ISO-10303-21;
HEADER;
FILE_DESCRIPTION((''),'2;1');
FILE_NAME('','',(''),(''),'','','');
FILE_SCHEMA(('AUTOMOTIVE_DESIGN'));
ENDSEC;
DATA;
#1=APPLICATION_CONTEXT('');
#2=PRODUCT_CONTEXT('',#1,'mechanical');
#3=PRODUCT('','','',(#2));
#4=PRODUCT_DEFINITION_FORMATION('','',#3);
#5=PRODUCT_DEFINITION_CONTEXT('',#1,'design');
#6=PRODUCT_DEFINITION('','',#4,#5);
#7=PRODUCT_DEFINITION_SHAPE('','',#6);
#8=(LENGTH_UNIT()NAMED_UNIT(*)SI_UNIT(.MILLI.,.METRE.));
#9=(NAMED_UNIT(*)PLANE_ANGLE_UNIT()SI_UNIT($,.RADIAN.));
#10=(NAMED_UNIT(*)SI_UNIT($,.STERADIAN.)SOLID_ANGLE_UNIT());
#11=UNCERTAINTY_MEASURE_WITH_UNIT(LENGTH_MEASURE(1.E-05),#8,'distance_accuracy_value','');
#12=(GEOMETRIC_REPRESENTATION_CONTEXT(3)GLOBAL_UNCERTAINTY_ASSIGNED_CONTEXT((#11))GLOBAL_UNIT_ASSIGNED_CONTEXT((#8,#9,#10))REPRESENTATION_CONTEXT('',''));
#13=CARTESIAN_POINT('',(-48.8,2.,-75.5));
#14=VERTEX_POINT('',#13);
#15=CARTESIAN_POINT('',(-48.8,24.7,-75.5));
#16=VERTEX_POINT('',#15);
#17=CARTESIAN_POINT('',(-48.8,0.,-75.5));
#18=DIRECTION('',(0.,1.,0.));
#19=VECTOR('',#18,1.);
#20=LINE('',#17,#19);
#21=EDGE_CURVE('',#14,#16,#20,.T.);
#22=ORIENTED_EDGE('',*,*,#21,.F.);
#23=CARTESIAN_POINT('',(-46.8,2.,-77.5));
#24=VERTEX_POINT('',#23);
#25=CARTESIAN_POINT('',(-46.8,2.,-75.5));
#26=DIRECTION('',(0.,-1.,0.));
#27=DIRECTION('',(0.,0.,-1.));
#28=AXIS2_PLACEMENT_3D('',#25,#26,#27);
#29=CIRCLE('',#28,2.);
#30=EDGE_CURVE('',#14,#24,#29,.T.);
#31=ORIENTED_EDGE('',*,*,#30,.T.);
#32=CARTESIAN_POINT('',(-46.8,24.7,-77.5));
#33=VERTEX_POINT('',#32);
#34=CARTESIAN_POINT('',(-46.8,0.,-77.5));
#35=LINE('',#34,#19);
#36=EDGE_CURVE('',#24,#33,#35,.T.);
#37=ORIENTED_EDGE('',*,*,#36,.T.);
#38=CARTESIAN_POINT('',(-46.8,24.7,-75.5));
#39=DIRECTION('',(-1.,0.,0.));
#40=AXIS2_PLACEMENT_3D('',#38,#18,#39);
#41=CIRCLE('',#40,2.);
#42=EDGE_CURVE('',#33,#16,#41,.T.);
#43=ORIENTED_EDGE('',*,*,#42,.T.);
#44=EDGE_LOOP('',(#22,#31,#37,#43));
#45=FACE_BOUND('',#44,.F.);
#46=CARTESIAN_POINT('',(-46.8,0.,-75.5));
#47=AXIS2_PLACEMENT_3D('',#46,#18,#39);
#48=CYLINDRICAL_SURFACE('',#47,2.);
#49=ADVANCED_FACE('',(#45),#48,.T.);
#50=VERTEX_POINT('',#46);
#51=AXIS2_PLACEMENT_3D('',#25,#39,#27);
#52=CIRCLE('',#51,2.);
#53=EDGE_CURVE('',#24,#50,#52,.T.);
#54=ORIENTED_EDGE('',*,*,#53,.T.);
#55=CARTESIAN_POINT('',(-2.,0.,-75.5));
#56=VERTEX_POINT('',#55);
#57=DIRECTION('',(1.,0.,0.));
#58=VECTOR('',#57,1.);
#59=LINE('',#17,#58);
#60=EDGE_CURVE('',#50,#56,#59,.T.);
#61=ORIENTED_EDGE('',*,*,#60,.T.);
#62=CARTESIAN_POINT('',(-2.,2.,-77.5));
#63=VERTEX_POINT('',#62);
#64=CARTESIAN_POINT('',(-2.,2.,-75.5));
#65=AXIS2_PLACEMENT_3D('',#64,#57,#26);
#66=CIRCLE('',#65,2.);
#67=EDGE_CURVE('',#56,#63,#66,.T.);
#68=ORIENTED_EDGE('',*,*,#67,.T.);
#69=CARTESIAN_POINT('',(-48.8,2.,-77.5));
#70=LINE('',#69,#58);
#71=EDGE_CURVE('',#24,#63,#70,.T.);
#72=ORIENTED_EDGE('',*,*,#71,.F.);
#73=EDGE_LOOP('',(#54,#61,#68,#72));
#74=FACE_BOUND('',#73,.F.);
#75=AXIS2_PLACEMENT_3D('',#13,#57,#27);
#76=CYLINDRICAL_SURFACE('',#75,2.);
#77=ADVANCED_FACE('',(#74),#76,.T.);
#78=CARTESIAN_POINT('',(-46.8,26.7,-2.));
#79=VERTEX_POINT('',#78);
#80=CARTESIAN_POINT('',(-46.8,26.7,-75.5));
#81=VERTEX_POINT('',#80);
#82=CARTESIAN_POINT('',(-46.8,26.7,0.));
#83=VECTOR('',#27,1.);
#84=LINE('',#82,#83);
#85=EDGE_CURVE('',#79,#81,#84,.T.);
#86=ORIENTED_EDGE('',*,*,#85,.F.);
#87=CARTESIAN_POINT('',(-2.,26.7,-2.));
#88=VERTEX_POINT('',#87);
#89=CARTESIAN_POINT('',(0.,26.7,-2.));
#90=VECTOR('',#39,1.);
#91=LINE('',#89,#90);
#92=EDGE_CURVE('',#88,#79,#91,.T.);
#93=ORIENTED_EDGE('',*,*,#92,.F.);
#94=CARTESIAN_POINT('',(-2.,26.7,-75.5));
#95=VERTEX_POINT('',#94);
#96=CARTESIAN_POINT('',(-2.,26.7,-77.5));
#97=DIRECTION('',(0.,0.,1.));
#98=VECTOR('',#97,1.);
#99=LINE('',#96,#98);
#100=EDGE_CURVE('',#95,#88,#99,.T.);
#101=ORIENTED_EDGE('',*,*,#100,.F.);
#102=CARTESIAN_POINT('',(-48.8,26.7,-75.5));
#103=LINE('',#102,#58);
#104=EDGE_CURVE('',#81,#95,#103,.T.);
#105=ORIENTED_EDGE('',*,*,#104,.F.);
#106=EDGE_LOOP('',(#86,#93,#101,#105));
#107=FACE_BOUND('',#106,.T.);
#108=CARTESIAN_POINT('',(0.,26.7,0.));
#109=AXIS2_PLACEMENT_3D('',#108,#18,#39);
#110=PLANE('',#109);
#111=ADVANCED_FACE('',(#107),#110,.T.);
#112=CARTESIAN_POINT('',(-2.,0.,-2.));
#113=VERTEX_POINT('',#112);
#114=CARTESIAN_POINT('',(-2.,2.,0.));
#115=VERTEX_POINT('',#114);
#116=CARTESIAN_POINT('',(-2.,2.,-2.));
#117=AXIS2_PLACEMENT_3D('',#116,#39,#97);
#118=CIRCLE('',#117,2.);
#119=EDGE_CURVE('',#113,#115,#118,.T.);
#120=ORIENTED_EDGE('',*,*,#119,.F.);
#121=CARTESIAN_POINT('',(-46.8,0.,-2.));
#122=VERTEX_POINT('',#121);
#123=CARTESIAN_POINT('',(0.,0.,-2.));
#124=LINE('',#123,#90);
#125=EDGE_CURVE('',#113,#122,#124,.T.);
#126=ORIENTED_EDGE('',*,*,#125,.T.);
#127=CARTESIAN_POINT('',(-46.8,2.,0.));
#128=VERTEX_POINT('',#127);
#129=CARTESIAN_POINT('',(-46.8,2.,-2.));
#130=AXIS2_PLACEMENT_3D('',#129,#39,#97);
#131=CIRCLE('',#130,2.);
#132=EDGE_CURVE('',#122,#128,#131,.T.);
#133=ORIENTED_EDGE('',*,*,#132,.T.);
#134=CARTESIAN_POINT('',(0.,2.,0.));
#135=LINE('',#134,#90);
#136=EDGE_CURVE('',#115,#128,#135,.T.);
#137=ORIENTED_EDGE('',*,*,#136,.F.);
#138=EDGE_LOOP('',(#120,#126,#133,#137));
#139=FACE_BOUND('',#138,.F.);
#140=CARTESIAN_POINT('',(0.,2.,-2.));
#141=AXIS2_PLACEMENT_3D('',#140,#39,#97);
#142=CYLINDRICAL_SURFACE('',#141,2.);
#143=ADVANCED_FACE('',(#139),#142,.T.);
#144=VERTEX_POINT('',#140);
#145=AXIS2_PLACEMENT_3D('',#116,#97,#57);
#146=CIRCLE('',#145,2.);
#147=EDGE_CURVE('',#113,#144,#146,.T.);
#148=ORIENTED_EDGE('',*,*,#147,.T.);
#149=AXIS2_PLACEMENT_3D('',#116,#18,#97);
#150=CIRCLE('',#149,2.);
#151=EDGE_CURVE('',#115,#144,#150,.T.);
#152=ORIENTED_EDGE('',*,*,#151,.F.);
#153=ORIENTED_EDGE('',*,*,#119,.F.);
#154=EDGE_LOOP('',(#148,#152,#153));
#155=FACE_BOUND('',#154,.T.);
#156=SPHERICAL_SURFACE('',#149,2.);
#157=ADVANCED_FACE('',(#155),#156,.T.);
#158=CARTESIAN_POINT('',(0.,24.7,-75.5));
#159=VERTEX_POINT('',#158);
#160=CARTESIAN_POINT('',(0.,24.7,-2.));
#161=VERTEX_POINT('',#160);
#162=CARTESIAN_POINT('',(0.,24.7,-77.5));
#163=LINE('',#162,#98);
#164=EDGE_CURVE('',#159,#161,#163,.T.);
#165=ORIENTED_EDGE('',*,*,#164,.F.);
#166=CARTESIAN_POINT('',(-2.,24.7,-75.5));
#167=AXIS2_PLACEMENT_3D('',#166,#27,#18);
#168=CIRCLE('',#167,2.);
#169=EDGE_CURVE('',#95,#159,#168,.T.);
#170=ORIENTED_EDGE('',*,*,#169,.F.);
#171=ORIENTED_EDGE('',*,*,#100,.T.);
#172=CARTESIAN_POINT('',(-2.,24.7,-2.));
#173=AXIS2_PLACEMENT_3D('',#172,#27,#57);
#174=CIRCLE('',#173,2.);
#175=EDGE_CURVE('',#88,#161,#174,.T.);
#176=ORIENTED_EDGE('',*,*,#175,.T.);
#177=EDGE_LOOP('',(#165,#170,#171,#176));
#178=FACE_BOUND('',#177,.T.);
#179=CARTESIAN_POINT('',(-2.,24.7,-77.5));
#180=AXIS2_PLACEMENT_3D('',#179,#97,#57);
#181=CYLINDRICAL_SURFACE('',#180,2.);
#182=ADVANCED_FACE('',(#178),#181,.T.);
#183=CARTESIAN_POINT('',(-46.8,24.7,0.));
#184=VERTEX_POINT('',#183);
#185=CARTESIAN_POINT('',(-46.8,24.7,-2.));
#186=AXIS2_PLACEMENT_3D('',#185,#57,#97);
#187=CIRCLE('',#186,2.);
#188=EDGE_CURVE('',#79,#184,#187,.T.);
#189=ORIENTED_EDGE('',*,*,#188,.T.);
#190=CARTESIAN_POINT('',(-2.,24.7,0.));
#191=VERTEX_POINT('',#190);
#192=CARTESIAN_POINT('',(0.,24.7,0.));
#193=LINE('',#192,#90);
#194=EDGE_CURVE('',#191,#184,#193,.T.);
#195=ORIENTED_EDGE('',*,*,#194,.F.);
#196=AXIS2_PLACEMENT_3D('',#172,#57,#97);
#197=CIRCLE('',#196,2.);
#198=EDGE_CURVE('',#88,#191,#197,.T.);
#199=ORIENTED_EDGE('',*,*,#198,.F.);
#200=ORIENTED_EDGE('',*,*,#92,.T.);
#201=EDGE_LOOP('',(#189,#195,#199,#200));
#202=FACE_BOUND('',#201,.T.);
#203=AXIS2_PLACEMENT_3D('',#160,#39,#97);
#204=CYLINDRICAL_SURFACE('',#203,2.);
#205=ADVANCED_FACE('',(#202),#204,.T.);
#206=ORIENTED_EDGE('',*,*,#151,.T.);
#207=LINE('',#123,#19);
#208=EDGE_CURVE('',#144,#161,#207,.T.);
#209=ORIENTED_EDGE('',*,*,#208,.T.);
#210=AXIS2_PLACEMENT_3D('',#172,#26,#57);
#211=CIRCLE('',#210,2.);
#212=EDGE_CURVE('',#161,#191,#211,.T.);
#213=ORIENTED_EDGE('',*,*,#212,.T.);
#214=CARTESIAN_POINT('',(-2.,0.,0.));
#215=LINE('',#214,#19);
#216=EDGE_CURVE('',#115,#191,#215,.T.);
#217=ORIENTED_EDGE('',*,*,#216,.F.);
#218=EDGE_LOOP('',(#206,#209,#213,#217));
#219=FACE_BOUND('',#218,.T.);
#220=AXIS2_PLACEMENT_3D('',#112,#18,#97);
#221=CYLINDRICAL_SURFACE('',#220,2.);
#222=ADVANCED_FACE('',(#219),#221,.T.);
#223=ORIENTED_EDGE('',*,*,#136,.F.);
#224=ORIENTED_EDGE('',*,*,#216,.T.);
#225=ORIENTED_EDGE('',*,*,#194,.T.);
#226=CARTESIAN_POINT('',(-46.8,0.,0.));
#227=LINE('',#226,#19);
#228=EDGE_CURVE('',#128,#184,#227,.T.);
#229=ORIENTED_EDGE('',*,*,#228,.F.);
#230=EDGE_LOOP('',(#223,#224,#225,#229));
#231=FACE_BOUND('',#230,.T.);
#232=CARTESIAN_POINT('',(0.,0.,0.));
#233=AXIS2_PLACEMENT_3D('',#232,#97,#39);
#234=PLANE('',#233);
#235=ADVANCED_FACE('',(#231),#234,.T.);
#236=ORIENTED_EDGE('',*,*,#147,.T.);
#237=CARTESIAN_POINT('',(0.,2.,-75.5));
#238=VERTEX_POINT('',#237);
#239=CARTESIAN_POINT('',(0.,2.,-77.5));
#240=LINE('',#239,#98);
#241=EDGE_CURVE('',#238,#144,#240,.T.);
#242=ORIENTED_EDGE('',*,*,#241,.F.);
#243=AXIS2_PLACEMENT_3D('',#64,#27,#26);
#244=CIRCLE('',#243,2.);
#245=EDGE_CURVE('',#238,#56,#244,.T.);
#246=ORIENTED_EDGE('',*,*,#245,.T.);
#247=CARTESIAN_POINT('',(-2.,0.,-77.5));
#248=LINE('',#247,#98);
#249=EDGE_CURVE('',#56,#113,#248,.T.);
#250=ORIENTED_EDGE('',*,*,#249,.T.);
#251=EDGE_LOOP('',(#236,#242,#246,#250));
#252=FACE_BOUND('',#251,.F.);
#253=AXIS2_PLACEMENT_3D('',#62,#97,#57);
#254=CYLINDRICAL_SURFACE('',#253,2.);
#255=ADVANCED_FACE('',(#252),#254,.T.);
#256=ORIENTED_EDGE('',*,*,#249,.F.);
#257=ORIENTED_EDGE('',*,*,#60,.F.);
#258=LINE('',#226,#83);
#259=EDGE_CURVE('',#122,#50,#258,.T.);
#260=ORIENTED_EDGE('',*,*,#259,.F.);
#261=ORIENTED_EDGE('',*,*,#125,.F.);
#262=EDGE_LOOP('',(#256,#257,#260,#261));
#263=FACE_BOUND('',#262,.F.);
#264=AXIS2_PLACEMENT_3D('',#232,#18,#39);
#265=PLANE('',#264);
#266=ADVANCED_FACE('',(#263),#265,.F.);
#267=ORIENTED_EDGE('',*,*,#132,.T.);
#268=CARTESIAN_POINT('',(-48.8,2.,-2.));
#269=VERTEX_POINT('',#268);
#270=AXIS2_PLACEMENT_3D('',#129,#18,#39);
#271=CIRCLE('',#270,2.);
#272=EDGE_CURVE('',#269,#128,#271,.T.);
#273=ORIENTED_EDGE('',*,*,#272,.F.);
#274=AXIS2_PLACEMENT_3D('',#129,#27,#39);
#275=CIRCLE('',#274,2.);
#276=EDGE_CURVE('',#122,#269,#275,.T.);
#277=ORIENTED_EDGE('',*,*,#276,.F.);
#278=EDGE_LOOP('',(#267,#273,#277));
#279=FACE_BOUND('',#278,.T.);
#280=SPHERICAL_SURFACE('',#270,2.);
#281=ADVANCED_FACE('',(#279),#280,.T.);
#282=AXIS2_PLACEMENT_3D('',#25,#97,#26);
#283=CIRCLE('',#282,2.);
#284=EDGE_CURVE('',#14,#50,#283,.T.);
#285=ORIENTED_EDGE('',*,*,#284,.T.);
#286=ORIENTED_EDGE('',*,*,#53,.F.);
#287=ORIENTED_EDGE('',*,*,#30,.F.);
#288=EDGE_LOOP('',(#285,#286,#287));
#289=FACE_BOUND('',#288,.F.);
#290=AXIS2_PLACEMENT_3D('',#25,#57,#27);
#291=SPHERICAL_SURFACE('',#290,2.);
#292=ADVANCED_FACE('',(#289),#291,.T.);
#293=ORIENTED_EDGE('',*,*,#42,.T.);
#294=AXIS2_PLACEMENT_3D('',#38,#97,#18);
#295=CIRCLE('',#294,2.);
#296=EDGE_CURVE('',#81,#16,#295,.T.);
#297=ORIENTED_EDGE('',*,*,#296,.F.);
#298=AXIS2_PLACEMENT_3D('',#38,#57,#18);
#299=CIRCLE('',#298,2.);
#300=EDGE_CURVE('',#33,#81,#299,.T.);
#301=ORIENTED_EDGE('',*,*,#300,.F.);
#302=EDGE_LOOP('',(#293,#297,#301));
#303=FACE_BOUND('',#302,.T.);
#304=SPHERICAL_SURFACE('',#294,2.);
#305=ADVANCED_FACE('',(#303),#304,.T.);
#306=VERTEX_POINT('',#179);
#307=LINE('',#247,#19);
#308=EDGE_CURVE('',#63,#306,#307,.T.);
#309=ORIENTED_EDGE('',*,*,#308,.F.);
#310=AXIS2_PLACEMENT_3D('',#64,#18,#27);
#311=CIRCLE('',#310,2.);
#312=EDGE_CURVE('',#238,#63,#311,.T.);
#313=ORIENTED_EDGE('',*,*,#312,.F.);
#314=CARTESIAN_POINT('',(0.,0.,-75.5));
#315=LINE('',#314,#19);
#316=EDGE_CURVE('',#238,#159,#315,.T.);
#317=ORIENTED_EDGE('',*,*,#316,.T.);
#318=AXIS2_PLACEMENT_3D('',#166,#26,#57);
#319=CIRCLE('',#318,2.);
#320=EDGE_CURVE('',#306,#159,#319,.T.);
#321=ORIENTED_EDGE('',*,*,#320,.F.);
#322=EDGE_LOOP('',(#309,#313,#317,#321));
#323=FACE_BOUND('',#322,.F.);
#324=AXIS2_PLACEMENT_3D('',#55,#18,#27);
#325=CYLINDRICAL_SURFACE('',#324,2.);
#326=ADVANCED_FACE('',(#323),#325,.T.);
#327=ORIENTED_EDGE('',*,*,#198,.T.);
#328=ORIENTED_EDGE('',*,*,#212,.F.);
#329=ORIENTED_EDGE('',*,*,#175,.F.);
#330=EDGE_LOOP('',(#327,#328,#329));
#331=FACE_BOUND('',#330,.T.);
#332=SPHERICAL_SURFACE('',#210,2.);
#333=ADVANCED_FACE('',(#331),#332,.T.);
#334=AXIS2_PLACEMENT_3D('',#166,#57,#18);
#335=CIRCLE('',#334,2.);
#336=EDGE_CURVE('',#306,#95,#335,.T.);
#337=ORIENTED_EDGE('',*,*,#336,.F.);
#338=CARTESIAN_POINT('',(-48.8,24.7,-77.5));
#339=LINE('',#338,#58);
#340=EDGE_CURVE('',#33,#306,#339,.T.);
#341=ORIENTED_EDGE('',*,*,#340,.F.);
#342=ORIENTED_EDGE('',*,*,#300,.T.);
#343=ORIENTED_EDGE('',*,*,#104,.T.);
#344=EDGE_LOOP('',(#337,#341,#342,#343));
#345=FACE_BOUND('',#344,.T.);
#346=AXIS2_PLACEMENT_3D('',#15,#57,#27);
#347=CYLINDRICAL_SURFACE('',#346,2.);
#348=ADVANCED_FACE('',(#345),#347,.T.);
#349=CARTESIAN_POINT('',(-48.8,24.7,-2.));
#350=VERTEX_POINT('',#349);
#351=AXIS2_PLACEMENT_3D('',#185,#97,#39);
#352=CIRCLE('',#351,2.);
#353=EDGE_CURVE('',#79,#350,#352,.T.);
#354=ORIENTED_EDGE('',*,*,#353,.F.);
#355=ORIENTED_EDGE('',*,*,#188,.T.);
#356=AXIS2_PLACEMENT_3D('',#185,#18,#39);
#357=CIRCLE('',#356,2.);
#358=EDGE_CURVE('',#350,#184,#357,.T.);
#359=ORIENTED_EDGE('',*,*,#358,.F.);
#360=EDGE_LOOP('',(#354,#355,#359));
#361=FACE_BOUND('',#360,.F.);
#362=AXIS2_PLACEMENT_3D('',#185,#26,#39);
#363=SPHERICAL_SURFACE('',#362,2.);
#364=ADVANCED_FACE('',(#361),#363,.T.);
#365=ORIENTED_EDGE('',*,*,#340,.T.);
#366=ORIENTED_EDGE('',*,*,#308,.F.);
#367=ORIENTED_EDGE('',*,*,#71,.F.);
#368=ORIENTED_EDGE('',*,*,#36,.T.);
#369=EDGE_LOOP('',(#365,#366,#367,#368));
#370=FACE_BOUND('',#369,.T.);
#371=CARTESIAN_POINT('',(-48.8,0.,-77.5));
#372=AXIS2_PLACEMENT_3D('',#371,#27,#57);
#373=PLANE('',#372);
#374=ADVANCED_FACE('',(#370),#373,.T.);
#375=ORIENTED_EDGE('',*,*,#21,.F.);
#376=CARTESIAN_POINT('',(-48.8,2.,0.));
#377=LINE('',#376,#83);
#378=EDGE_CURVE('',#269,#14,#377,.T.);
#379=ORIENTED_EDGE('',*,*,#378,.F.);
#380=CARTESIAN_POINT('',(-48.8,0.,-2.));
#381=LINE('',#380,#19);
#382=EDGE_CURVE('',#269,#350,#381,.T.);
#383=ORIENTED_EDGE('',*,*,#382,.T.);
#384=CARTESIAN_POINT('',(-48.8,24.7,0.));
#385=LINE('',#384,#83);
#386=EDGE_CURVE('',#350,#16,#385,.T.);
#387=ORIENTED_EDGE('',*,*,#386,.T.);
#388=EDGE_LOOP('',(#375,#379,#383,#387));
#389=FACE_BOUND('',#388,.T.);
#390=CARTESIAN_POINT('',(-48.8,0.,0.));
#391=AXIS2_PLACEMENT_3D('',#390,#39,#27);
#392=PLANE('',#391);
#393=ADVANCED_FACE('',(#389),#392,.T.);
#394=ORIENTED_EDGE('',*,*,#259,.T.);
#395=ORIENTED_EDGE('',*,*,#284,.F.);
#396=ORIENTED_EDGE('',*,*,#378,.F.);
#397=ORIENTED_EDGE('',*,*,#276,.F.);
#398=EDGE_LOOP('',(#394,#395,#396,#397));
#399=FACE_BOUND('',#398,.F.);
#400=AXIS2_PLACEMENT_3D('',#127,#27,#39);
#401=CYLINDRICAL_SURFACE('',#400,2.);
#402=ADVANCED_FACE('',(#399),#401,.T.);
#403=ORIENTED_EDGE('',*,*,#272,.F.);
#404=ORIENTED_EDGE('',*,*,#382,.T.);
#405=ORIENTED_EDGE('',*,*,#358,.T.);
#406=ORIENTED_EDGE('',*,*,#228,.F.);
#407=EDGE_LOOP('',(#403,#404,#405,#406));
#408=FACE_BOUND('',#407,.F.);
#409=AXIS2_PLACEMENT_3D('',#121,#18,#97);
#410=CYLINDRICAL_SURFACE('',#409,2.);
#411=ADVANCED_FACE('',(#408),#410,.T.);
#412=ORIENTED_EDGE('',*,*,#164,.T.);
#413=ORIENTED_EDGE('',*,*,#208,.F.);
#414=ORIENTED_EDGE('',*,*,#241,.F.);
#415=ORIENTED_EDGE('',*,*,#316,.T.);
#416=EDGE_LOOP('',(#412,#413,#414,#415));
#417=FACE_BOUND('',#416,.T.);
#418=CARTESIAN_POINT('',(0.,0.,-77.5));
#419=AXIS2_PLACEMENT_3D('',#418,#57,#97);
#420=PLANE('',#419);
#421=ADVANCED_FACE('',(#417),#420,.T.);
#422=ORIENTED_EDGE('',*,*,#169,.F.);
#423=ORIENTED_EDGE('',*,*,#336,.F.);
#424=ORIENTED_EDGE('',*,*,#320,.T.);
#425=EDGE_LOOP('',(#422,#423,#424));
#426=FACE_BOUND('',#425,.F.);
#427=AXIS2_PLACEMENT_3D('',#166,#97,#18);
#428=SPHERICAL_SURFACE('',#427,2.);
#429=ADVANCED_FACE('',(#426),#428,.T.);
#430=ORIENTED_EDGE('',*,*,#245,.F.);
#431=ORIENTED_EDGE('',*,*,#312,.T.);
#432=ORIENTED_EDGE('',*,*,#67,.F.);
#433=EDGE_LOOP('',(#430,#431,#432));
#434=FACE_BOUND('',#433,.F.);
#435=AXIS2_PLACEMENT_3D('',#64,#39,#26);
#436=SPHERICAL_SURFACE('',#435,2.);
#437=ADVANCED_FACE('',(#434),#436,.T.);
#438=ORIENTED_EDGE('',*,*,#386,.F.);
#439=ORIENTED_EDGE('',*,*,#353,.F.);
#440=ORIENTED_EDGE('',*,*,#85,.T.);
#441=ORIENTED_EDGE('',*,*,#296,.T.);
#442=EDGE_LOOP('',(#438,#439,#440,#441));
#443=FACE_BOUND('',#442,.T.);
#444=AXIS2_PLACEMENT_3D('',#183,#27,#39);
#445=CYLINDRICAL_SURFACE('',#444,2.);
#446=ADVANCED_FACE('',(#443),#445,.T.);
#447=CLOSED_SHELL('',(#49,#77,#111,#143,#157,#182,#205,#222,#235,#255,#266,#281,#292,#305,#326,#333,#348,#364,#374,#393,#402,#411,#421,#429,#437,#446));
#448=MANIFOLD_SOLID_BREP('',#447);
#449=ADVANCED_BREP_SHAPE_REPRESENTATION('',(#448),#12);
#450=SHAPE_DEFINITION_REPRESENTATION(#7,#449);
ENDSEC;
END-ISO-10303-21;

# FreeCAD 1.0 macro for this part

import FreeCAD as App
import Part
import Sketcher
from FreeCAD import Vector
Q = App.Units.Quantity

doc = App.newDocument("Part")
body = doc.addObject("PartDesign::Body", "Body")

# Sketch on XZ plane
sketch1 = doc.addObject("Sketcher::SketchObject", "Sketch")
body.addObject(sketch1)
sketch1.AttachmentSupport = (doc.XZ_Plane, [""])
sketch1.MapMode = "FlatFace"
sketch1.addGeometry([
    Part.LineSegment(Vector(-49, 0, 0), Vector(0, 0, 0)),
    Part.LineSegment(Vector(0, 0, 0), Vector(0, -78, 0)),
    Part.LineSegment(Vector(0, -78, 0), Vector(-49, -78, 0)),
    Part.LineSegment(Vector(-49, -78, 0), Vector(-49, 0, 0)),
], False)
sketch1.addConstraint([
    Sketcher.Constraint("Coincident", 0, 2, 1, 1),
    Sketcher.Constraint("Coincident", 1, 2, 2, 1),
    Sketcher.Constraint("Coincident", 2, 2, 3, 1),
    Sketcher.Constraint("Coincident", 3, 2, 0, 1),
    Sketcher.Constraint("Horizontal", 0),
    Sketcher.Constraint("Vertical", 1),
    Sketcher.Constraint("Horizontal", 2),
    Sketcher.Constraint("Vertical", 3),
    Sketcher.Constraint("Coincident", 0, 2, -1, 1),
    Sketcher.Constraint("DistanceX", 0, 1, 0, 2, Q("48.8 mm")),
    Sketcher.Constraint("DistanceY", 1, 2, 1, 1, Q("77.5 mm")),
])
pad1 = doc.addObject("PartDesign::Pad", "Pad")
body.addObject(pad1)
pad1.Profile = sketch1
pad1.Length = 26.7
pad1.Reversed = True
doc.recompute()

fillet = doc.addObject("PartDesign::Fillet", "Fillet")
body.addObject(fillet)
fillet.Base = (pad1, ["Edge1"])
fillet.UseAllEdges = True
fillet.Radius = 2

doc.recompute()
